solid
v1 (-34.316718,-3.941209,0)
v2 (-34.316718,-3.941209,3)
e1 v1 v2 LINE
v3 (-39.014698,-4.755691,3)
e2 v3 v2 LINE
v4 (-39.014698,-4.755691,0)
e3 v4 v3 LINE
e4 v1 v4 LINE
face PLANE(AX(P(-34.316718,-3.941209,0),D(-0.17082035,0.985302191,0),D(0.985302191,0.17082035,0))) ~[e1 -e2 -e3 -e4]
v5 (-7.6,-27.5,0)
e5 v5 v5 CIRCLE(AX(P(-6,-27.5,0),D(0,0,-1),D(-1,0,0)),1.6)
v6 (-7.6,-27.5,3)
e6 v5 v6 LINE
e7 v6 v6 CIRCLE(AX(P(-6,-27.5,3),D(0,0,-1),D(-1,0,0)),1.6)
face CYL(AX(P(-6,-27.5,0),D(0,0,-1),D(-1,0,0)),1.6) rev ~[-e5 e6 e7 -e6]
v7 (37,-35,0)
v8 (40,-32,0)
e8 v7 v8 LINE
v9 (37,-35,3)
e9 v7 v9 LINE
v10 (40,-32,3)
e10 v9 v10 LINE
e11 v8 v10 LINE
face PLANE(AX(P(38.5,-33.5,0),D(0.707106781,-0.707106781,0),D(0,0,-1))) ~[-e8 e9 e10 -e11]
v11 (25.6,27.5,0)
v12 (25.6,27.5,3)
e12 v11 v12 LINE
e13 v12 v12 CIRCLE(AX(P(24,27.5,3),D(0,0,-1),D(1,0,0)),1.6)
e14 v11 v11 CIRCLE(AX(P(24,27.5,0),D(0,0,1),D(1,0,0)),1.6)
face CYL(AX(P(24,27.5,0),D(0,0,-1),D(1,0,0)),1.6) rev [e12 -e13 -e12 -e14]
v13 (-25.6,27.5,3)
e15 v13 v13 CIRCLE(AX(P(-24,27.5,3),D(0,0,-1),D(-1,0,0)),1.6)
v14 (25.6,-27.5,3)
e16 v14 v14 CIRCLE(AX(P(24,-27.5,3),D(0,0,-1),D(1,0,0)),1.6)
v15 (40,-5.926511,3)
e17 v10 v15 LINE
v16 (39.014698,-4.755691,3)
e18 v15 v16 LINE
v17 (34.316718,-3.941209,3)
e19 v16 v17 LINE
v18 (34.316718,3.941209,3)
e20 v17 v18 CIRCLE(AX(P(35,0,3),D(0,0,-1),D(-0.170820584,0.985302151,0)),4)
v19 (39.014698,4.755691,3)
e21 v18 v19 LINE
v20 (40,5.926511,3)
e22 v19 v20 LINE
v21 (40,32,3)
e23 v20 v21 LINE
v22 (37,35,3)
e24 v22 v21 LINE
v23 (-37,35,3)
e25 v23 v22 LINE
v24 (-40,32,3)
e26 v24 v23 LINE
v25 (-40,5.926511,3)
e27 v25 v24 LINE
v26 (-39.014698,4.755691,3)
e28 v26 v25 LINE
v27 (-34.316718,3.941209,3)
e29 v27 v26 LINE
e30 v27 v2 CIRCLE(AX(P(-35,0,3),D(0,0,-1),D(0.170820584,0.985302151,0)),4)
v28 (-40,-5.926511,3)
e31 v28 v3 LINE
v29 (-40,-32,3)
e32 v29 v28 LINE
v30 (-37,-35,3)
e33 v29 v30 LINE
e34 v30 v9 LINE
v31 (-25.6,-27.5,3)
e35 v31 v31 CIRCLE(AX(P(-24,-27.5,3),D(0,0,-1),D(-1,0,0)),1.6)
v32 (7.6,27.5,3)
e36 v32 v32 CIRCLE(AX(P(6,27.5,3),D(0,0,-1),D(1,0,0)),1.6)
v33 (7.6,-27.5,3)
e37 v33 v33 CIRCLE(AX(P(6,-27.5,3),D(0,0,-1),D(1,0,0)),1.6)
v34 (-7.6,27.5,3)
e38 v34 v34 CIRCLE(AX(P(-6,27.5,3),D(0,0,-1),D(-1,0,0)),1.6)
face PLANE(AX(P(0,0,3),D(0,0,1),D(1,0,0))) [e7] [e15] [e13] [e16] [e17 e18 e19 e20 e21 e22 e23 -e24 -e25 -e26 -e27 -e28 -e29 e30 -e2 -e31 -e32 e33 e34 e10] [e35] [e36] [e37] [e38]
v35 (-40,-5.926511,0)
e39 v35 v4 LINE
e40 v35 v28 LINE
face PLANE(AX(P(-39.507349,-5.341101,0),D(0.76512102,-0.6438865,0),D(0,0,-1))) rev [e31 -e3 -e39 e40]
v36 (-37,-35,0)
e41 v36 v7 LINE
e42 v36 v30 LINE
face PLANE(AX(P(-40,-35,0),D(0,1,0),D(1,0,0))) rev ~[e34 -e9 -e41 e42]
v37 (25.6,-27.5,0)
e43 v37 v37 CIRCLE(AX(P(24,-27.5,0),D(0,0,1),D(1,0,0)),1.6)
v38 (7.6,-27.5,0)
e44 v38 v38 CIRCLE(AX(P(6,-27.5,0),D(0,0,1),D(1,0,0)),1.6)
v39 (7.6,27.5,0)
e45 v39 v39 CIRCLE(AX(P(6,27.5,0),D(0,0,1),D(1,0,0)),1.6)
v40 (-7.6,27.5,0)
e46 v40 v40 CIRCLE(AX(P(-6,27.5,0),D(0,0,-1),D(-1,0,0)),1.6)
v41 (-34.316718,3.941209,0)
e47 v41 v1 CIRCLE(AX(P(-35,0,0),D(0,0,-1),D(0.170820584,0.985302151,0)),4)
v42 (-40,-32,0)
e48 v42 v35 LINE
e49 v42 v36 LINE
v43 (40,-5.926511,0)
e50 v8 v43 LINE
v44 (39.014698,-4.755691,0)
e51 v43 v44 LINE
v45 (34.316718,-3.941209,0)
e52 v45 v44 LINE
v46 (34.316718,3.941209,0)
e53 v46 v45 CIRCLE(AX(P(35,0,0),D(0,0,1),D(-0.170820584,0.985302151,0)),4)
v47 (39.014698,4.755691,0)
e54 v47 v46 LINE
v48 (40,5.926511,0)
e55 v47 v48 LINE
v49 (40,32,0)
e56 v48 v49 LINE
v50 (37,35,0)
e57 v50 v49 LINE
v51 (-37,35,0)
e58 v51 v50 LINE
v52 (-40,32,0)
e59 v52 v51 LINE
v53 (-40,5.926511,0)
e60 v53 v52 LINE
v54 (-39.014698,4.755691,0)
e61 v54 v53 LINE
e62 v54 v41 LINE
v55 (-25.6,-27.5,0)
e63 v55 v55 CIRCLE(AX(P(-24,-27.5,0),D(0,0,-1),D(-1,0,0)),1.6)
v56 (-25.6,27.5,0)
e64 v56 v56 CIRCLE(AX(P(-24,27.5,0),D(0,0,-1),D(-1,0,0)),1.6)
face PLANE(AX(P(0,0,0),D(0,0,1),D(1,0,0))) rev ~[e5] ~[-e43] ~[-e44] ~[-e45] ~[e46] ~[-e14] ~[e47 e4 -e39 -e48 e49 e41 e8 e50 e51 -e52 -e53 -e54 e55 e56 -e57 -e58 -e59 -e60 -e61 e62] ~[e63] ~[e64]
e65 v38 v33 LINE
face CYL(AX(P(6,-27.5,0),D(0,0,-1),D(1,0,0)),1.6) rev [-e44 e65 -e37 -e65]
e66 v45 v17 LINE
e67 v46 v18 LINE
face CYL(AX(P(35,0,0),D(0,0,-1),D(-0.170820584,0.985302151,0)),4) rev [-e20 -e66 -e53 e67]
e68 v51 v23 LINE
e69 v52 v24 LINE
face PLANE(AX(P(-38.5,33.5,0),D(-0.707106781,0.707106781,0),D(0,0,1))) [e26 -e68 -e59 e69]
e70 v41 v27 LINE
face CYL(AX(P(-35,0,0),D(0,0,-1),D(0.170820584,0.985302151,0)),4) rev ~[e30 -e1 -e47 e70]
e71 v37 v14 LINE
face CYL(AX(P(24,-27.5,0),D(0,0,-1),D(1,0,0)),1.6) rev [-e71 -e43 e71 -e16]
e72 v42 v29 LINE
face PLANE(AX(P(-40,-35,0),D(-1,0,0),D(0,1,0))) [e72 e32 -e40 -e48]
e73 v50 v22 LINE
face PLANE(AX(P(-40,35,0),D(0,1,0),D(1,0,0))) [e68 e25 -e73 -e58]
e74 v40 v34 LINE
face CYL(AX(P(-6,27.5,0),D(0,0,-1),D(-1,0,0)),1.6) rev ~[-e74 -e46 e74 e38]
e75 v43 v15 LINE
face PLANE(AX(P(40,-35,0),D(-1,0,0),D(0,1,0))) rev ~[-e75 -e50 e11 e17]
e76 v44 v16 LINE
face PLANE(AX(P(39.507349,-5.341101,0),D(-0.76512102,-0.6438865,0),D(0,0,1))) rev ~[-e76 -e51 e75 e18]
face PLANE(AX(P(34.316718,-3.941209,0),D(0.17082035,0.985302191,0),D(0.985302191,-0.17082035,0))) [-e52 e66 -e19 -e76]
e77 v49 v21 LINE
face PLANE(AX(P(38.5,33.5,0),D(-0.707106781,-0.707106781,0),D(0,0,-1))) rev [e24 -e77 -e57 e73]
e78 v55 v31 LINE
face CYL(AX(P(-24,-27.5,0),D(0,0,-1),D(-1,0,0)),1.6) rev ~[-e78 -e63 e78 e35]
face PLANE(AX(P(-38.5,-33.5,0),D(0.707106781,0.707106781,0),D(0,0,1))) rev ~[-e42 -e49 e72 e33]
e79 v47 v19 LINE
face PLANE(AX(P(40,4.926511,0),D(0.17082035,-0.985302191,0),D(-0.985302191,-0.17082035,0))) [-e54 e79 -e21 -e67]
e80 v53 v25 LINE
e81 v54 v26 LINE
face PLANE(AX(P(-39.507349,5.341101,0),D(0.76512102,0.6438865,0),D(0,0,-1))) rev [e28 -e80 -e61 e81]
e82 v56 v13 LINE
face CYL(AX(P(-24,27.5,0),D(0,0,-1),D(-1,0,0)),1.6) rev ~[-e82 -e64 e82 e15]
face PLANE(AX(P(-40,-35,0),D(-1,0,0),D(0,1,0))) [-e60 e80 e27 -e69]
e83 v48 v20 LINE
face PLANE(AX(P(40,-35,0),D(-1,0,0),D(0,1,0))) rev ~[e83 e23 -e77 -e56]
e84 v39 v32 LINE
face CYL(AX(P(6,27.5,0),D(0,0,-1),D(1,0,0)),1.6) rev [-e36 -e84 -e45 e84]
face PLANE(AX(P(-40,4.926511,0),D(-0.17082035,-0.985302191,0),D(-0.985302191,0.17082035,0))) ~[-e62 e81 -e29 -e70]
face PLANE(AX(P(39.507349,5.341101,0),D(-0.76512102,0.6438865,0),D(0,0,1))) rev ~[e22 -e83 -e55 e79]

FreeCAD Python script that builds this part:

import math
import FreeCAD as App
import Part
import Sketcher
from FreeCAD import Vector


def edges_at(feature, points):
    """Names of the edges that pass closest to the given points."""
    edges = feature.Shape.Edges
    near = lambda p: min(range(len(edges)), key=lambda i: edges[i].distToShape(Part.Vertex(*p))[0])
    return sorted({f"Edge{near(p) + 1}" for p in points})

doc = App.newDocument("Part")
body = doc.addObject("PartDesign::Body", "Body")

# Sketch on XY plane
sketch1 = body.newObject("Sketcher::SketchObject", "Sketch")
sketch1.AttachmentSupport = (doc.getObject("XY_Plane"), [""])
sketch1.MapMode = "FlatFace"
sketch1.addGeometry(Part.LineSegment(Vector(-40, 35, 0), Vector(-40, -35, 0)), False)
sketch1.addGeometry(Part.LineSegment(Vector(-40, -35, 0), Vector(40, -35, 0)), False)
sketch1.addGeometry(Part.LineSegment(Vector(40, -35, 0), Vector(40, 35, 0)), False)
sketch1.addGeometry(Part.LineSegment(Vector(40, 35, 0), Vector(-40, 35, 0)), False)
sketch1.addConstraint(Sketcher.Constraint("Coincident", 0, 2, 1, 1))
sketch1.addConstraint(Sketcher.Constraint("Coincident", 1, 2, 2, 1))
sketch1.addConstraint(Sketcher.Constraint("Coincident", 2, 2, 3, 1))
sketch1.addConstraint(Sketcher.Constraint("Coincident", 3, 2, 0, 1))
sketch1.addConstraint(Sketcher.Constraint("Vertical", 0))
sketch1.addConstraint(Sketcher.Constraint("Horizontal", 1))
sketch1.addConstraint(Sketcher.Constraint("Vertical", 2))
sketch1.addConstraint(Sketcher.Constraint("Horizontal", 3))
sketch1.addConstraint(Sketcher.Constraint("Symmetric", 0, 2, 2, 2, -1, 1))
sketch1.addConstraint(Sketcher.Constraint("DistanceX", 1, 1, 1, 2, 80.0))
sketch1.addConstraint(Sketcher.Constraint("DistanceY", 0, 2, 0, 1, 70.0))
pad1 = body.newObject("PartDesign::Pad", "Pad")
pad1.Profile = sketch1
pad1.Length = 3

# Sketch on XY plane
sketch2 = body.newObject("Sketcher::SketchObject", "Sketch001")
sketch2.AttachmentSupport = (doc.getObject("XY_Plane"), [""])
sketch2.MapMode = "FlatFace"
sketch2.addGeometry(Part.Circle(Vector(24, 27.5, 0), Vector(0, 0, 1), 1.6), False)
sketch2.addGeometry(Part.Circle(Vector(6, 27.5, 0), Vector(0, 0, 1), 1.6), False)
sketch2.addGeometry(Part.Circle(Vector(6, -27.5, 0), Vector(0, 0, 1), 1.6), False)
sketch2.addGeometry(Part.Circle(Vector(24, -27.5, 0), Vector(0, 0, 1), 1.6), False)
sketch2.addGeometry(Part.ArcOfCircle(Part.Circle(Vector(35, 0, 0), Vector(0, 0, 1), 4), math.radians(100), math.radians(260)), False)
sketch2.addGeometry(Part.LineSegment(Vector(34.3, -3.9, 0), Vector(40, -4.9, 0)), False)
sketch2.addGeometry(Part.ArcOfCircle(Part.Circle(Vector(40.9, 0, 0), Vector(0, 0, 1), 5), math.radians(-100), math.radians(100)), False)
sketch2.addGeometry(Part.LineSegment(Vector(40, 4.9, 0), Vector(34.3, 3.9, 0)), False)
sketch2.addConstraint(Sketcher.Constraint("Tangent", 4, 2, 5, 1))
sketch2.addConstraint(Sketcher.Constraint("Tangent", 5, 2, 6, 1))
sketch2.addConstraint(Sketcher.Constraint("Tangent", 6, 2, 7, 1))
sketch2.addConstraint(Sketcher.Constraint("Tangent", 7, 2, 4, 1))
sketch2.addConstraint(Sketcher.Constraint("Equal", 0, 1))
sketch2.addConstraint(Sketcher.Constraint("Equal", 1, 2))
sketch2.addConstraint(Sketcher.Constraint("Equal", 2, 3))
sketch2.addConstraint(Sketcher.Constraint("Symmetric", 1, 3, 2, 3, -1))
sketch2.addConstraint(Sketcher.Constraint("Symmetric", 0, 3, 3, 3, -1))
sketch2.addConstraint(Sketcher.Constraint("Symmetric", 5, 2, 6, 2, -1))
sketch2.addConstraint(Sketcher.Constraint("Horizontal", 0, 3, 1, 3))
sketch2.addConstraint(Sketcher.Constraint("Radius", 4, 4.0))
sketch2.addConstraint(Sketcher.Constraint("Radius", 6, 5.0))
sketch2.addConstraint(Sketcher.Constraint("Diameter", 0, 3.2))
sketch2.addConstraint(Sketcher.Constraint("DistanceX", -1, 1, 0, 3, 24.0))
sketch2.addConstraint(Sketcher.Constraint("DistanceX", -1, 1, 1, 3, 6.0))
sketch2.addConstraint(Sketcher.Constraint("DistanceX", -1, 1, 4, 3, 35.0))
sketch2.addConstraint(Sketcher.Constraint("DistanceX", -1, 1, 5, 2, 40.0))
sketch2.addConstraint(Sketcher.Constraint("DistanceY", 2, 3, 1, 3, 55.0))
pocket1 = body.newObject("PartDesign::Pocket", "Pocket")
pocket1.Profile = sketch2
pocket1.Length = 5
pocket1.Reversed = True
doc.recompute()

mirrored = body.newObject("PartDesign::Mirrored", "Mirrored")
mirrored.Originals = [pocket1]
mirrored.MirrorPlane = (doc.getObject("YZ_Plane"), [""])
body.Tip = mirrored
doc.recompute()

chamfer = body.newObject("PartDesign::Chamfer", "Chamfer")
chamfer.Base = (mirrored, edges_at(mirrored, [
    (-40, -35, 1.5),
    (40, -35, 1.5),
    (-40, 35, 1.5),
    (40, 35, 1.5),
]))
chamfer.Size = 3
doc.recompute()

chamfer2 = body.newObject("PartDesign::Chamfer", "Chamfer001")
chamfer2.Base = (chamfer, edges_at(chamfer, [
    (40, -4.927, 1.5),
    (40, 4.927, 1.5),
    (-40, 4.927, 1.5),
    (-40, -4.927, 1.5),
]))
chamfer2.Size = 1

doc.recompute()
